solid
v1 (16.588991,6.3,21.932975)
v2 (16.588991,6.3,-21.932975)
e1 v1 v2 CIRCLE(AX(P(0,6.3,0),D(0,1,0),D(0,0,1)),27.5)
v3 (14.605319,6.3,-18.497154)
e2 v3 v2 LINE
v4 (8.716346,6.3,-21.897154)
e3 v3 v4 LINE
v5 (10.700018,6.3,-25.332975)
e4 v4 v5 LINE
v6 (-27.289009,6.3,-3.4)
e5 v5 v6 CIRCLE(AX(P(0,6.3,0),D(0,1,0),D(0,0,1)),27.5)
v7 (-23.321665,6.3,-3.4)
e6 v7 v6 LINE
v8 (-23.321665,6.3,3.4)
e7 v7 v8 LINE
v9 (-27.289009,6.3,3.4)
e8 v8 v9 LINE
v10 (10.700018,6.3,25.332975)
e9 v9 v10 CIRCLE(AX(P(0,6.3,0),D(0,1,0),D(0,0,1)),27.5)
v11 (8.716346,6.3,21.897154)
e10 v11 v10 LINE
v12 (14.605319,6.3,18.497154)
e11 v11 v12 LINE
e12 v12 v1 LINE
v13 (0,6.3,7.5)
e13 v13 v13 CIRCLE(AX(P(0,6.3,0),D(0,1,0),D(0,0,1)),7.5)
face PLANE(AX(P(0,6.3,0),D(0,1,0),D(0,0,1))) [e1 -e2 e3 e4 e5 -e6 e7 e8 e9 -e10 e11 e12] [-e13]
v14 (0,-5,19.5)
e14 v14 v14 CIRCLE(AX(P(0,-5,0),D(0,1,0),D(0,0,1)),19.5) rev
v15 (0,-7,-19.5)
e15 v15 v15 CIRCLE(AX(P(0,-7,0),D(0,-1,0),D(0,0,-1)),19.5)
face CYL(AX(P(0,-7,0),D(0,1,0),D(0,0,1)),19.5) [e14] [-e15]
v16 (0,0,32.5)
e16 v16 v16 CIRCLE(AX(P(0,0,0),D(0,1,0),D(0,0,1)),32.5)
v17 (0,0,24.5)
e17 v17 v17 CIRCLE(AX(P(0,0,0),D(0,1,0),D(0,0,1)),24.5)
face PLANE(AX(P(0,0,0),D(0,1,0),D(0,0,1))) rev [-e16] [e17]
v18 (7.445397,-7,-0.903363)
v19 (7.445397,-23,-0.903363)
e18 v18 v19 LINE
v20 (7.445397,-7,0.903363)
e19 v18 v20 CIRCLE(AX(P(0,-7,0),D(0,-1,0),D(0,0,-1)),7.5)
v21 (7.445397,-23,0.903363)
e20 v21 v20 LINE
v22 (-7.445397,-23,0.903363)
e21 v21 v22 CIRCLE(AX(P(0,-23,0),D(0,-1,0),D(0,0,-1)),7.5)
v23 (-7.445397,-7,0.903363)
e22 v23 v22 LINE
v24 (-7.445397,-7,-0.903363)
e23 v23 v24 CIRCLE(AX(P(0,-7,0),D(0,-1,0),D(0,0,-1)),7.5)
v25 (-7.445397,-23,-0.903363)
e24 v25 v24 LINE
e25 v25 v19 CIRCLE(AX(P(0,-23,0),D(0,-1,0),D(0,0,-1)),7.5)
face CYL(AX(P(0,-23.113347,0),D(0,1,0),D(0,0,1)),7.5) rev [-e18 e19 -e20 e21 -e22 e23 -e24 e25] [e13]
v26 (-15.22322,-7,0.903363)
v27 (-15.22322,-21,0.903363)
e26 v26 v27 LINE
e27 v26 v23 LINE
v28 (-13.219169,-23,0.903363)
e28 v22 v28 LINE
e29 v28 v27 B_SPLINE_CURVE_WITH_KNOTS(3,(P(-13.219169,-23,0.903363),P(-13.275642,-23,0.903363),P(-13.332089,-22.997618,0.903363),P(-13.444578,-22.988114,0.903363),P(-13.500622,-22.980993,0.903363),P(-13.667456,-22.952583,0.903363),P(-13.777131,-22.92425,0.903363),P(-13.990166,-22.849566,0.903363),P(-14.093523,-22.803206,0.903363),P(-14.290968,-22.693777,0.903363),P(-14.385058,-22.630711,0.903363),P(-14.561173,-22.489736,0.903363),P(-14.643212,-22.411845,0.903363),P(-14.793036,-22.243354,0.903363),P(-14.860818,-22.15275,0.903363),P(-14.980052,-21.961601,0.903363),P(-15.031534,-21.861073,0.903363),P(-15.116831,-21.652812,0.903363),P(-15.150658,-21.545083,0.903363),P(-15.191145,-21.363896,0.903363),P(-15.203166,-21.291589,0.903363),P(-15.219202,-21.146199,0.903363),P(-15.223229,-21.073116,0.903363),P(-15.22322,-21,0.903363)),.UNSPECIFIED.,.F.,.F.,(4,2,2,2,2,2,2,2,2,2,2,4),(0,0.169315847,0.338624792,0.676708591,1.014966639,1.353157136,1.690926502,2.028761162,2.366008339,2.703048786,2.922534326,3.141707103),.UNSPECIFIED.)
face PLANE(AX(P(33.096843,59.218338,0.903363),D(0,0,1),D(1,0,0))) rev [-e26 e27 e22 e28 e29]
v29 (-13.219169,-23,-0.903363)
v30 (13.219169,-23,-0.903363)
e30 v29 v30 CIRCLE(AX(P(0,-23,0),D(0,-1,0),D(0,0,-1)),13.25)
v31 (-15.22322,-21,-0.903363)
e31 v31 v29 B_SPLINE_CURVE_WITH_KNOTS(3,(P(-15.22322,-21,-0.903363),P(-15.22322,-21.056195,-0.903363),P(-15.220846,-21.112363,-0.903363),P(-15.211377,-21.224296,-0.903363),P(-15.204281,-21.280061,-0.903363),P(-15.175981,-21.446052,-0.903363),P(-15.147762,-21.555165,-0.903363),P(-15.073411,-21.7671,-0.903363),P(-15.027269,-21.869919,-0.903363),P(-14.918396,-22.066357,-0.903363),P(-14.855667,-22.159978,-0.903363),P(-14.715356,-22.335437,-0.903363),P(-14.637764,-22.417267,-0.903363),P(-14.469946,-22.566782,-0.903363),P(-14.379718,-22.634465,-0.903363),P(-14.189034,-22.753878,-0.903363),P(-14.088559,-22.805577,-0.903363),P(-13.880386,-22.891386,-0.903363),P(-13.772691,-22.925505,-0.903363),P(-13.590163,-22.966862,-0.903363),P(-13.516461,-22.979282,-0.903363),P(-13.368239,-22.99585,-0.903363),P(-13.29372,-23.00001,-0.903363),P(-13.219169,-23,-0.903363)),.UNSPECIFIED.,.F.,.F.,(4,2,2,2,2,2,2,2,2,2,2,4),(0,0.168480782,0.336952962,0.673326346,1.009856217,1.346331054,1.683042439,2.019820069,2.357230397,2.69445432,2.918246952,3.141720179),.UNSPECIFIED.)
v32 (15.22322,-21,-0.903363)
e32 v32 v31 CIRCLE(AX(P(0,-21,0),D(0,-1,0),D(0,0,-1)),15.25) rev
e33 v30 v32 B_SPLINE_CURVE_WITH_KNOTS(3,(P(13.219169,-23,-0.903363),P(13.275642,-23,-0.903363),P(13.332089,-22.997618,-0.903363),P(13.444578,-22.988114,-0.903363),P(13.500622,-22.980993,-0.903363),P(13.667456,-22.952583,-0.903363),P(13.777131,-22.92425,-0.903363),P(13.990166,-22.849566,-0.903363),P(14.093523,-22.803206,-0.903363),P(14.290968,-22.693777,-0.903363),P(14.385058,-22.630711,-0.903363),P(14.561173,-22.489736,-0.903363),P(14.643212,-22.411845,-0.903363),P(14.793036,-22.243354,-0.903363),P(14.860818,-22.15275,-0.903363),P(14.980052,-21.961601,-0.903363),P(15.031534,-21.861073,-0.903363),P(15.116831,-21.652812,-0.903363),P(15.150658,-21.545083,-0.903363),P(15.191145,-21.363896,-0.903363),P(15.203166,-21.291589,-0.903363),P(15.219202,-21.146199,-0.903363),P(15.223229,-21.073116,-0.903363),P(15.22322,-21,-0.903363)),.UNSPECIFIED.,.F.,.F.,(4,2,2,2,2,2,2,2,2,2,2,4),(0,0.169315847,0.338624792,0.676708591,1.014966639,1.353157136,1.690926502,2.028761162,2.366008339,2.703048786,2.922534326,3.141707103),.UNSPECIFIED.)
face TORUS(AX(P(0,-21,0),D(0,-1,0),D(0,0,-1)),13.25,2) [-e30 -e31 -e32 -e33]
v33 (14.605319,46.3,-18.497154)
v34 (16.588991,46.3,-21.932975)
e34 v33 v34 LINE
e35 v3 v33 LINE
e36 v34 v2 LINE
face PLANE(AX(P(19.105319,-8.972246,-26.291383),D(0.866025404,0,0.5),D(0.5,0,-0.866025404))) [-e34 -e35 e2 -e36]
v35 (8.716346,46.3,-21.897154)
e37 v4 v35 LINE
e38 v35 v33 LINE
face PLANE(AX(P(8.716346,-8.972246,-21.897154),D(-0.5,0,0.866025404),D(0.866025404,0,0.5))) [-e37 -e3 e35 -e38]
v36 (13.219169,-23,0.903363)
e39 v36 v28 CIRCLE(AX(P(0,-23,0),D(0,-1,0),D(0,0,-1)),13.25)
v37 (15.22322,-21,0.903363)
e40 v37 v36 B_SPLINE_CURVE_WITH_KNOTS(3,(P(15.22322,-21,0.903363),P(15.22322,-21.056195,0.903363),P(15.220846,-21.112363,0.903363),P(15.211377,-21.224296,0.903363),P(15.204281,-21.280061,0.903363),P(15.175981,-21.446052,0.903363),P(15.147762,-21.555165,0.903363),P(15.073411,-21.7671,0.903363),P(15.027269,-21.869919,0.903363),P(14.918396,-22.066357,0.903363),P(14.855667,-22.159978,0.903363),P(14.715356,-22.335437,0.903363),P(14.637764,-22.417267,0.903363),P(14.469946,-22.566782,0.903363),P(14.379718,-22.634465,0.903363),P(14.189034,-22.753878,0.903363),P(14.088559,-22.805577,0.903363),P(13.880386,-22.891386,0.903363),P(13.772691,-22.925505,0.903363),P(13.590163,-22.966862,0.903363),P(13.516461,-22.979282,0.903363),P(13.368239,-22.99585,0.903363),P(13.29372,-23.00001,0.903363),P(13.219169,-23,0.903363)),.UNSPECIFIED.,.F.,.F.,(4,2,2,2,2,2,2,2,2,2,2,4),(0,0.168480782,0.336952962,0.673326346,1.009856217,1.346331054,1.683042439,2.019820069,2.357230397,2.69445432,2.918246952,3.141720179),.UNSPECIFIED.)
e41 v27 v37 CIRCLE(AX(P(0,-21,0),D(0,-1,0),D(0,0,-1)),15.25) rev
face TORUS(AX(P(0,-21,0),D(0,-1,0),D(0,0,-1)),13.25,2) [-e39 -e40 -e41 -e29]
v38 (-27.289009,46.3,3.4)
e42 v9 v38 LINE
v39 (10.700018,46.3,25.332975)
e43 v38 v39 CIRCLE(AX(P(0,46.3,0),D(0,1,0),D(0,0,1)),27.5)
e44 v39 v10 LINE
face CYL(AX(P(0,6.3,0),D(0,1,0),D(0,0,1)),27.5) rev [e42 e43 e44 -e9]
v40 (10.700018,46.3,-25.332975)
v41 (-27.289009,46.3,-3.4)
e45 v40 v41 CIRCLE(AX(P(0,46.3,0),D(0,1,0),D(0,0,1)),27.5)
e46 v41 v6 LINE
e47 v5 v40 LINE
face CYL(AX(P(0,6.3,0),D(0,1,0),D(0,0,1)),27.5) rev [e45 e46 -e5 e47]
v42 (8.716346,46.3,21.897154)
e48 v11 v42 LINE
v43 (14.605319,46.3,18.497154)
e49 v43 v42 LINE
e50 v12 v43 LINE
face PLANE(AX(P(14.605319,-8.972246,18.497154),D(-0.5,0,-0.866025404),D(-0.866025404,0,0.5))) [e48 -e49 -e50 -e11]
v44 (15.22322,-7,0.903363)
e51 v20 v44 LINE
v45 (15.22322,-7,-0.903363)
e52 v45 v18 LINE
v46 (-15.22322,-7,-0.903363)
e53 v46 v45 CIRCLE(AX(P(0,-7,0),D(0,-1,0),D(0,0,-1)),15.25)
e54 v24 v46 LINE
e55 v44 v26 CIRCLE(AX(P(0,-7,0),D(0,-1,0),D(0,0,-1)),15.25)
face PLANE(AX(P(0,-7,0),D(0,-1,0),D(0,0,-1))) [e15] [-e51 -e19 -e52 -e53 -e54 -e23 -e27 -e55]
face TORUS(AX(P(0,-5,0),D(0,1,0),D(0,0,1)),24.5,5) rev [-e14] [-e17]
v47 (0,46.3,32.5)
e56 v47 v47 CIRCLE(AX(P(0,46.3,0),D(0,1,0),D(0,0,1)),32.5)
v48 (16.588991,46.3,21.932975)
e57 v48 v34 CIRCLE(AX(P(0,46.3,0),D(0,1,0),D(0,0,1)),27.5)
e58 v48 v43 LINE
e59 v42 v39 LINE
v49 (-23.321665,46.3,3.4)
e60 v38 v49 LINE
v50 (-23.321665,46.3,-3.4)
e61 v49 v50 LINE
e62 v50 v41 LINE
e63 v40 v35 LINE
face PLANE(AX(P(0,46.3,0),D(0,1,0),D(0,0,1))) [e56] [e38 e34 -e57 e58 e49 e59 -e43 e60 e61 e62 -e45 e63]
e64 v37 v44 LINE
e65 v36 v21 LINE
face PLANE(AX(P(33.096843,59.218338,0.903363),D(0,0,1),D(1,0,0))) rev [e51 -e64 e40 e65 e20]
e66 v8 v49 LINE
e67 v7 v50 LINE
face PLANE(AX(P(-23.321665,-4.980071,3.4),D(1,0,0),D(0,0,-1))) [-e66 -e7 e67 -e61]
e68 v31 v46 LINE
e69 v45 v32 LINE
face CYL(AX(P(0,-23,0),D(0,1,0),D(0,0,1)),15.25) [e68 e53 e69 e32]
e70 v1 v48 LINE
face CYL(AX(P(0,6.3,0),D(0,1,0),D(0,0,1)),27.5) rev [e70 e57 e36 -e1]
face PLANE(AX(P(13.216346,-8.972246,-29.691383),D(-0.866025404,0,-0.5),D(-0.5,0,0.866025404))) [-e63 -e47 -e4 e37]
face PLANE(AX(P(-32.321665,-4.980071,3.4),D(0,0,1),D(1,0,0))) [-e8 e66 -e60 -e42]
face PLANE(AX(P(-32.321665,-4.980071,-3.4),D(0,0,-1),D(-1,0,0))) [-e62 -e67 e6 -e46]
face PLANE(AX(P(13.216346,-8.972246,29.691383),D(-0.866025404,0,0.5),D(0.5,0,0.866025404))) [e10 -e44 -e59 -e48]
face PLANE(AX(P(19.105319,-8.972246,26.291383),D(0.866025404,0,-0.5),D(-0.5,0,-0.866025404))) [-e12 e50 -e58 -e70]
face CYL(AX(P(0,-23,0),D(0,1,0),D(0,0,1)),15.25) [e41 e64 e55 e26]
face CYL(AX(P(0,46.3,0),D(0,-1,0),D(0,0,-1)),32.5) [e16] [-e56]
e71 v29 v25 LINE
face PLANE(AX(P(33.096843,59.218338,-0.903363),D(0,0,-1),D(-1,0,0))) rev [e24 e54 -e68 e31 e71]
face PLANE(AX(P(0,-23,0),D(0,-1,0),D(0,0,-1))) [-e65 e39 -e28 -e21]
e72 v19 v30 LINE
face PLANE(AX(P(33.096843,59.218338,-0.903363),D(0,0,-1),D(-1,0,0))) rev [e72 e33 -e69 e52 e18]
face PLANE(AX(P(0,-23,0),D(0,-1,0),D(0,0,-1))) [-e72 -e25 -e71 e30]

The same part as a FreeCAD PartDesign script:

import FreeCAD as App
import Part
import Sketcher
Q = App.Units.Quantity


def edges_at(feature, points):
    """Names of the edges that pass closest to the given points."""
    edges = feature.Shape.Edges
    near = lambda p: min(range(len(edges)), key=lambda i: edges[i].distToShape(Part.Vertex(*p))[0])
    return sorted({f"Edge{near(p) + 1}" for p in points})

doc = App.newDocument("Part")
params = doc.addObject("Spreadsheet::Sheet", "Params")
for row, (alias, value) in enumerate([
    ("sketch1_diameter", "65 mm"),
    ("pad1_length", "46.3 mm"),
    ("sketch2_diameter", "55 mm"),
    ("pocket1_length", "40 mm"),
    ("sketch3_diameter", "39 mm"),
    ("pad2_length", "7 mm"),
    ("sketch4_diameter", "30.5 mm"),
    ("pad3_length", "16 mm"),
    ("fillet_radius", "5 mm"),
    ("pocket2_length", "16 mm"),
    ("fillet2_radius", "2 mm"),
    ("sketch6_width", "9 mm"),
    ("sketch6_height", "6.8 mm"),
    ("pad4_length", "40 mm"),
    ("sketch7_diameter", "15 mm"),
], start=1):
    params.set(f"A{row}", alias)
    params.set(f"B{row}", "=" + value)
    params.setAlias(f"B{row}", alias)

body = doc.addObject("PartDesign::Body", "Body")

sketch1 = body.newObject("Sketcher::SketchObject", "Sketch")
sketch1.AttachmentSupport = (doc.getObject("XZ_Plane"), [""])
sketch1.MapMode = "FlatFace"
sketch1.addGeometry(Part.Circle(App.Vector(0, 0, 0), App.Vector(0, 0, 1), 32), False)
sketch1.addConstraint(Sketcher.Constraint("Coincident", 0, 3, -1, 1))
sketch1.addConstraint(Sketcher.Constraint("Diameter", 0, Q("65 mm")))
sketch1.setExpression("Constraints[1]", "Params.sketch1_diameter")
pad1 = body.newObject("PartDesign::Pad", "Pad")
pad1.Profile = sketch1
pad1.setExpression("Length", "Params.pad1_length")
pad1.Reversed = True

sketch2 = body.newObject("Sketcher::SketchObject", "Sketch001")
sketch2.AttachmentSupport = (doc.getObject("XZ_Plane"), [""])
sketch2.MapMode = "FlatFace"
sketch2.AttachmentOffset = App.Placement(App.Vector(0, 0, -46.3), App.Rotation())
sketch2.addGeometry(Part.Circle(App.Vector(0, 0, 0), App.Vector(0, 0, 1), 28), False)
sketch2.addConstraint(Sketcher.Constraint("Coincident", 0, 3, -1, 1))
sketch2.addConstraint(Sketcher.Constraint("Diameter", 0, Q("55 mm")))
sketch2.setExpression("Constraints[1]", "Params.sketch2_diameter")
pocket1 = body.newObject("PartDesign::Pocket", "Pocket")
pocket1.Profile = sketch2
pocket1.setExpression("Length", "Params.pocket1_length")
pocket1.Reversed = True

sketch3 = body.newObject("Sketcher::SketchObject", "Sketch002")
sketch3.AttachmentSupport = (doc.getObject("XZ_Plane"), [""])
sketch3.MapMode = "FlatFace"
sketch3.addGeometry(Part.Circle(App.Vector(0, 0, 0), App.Vector(0, 0, 1), 20), False)
sketch3.addConstraint(Sketcher.Constraint("Coincident", 0, 3, -1, 1))
sketch3.addConstraint(Sketcher.Constraint("Diameter", 0, Q("39 mm")))
sketch3.setExpression("Constraints[1]", "Params.sketch3_diameter")
pad2 = body.newObject("PartDesign::Pad", "Pad001")
pad2.Profile = sketch3
pad2.setExpression("Length", "Params.pad2_length")

sketch4 = body.newObject("Sketcher::SketchObject", "Sketch003")
sketch4.AttachmentSupport = (doc.getObject("XZ_Plane"), [""])
sketch4.MapMode = "FlatFace"
sketch4.AttachmentOffset = App.Placement(App.Vector(0, 0, 7), App.Rotation())
sketch4.addGeometry(Part.Circle(App.Vector(0, 0, 0), App.Vector(0, 0, 1), 15), False)
sketch4.addConstraint(Sketcher.Constraint("Coincident", 0, 3, -1, 1))
sketch4.addConstraint(Sketcher.Constraint("Diameter", 0, Q("30.5 mm")))
sketch4.setExpression("Constraints[1]", "Params.sketch4_diameter")
pad3 = body.newObject("PartDesign::Pad", "Pad002")
pad3.Profile = sketch4
pad3.setExpression("Length", "Params.pad3_length")
doc.recompute()

fillet = body.newObject("PartDesign::Fillet", "Fillet")
fillet.Base = (pad3, edges_at(pad3, [(0, 0, 19.5)]))
fillet.setExpression("Radius", "Params.fillet_radius")

sketch5 = body.newObject("Sketcher::SketchObject", "Sketch004")
sketch5.AttachmentSupport = (doc.getObject("XZ_Plane"), [""])
sketch5.MapMode = "FlatFace"
sketch5.AttachmentOffset = App.Placement(App.Vector(0, 0, 23), App.Rotation())
sketch5.addGeometry(Part.LineSegment(App.Vector(-33.1, 0.9, 0), App.Vector(-33.1, -0.9, 0)), False)
sketch5.addGeometry(Part.LineSegment(App.Vector(-33.1, -0.9, 0), App.Vector(33.1, -0.9, 0)), False)
sketch5.addGeometry(Part.LineSegment(App.Vector(33.1, -0.9, 0), App.Vector(33.1, 0.9, 0)), False)
sketch5.addGeometry(Part.LineSegment(App.Vector(33.1, 0.9, 0), App.Vector(-33.1, 0.9, 0)), False)
sketch5.addConstraint(Sketcher.Constraint("Coincident", 0, 2, 1, 1))
sketch5.addConstraint(Sketcher.Constraint("Coincident", 1, 2, 2, 1))
sketch5.addConstraint(Sketcher.Constraint("Coincident", 2, 2, 3, 1))
sketch5.addConstraint(Sketcher.Constraint("Coincident", 3, 2, 0, 1))
sketch5.addConstraint(Sketcher.Constraint("Vertical", 0))
sketch5.addConstraint(Sketcher.Constraint("Horizontal", 1))
sketch5.addConstraint(Sketcher.Constraint("Vertical", 2))
sketch5.addConstraint(Sketcher.Constraint("Horizontal", 3))
sketch5.addConstraint(Sketcher.Constraint("Symmetric", 0, 2, 2, 2, -1, 1))
sketch5.addConstraint(Sketcher.Constraint("DistanceX", 1, 1, 1, 2, Q("66.193685 mm")))
sketch5.addConstraint(Sketcher.Constraint("DistanceY", 0, 2, 0, 1, Q("1.806727 mm")))
pocket2 = body.newObject("PartDesign::Pocket", "Pocket001")
pocket2.Profile = sketch5
pocket2.setExpression("Length", "Params.pocket2_length")
doc.recompute()

fillet2 = body.newObject("PartDesign::Fillet", "Fillet001")
fillet2.Base = (pocket2, edges_at(pocket2, [(0, -23, 15.25), (0, -23, -15.25)]))
fillet2.setExpression("Radius", "Params.fillet2_radius")

sketch6 = body.newObject("Sketcher::SketchObject", "Sketch005")
sketch6.AttachmentSupport = (doc.getObject("XZ_Plane"), [""])
sketch6.MapMode = "FlatFace"
sketch6.AttachmentOffset = App.Placement(App.Vector(0, 0, -46.3), App.Rotation())
sketch6.addGeometry(Part.LineSegment(App.Vector(-32, -3, 0), App.Vector(-32, 3, 0)), False)
sketch6.addGeometry(Part.LineSegment(App.Vector(-32, 3, 0), App.Vector(-23, 3, 0)), False)
sketch6.addGeometry(Part.LineSegment(App.Vector(-23, 3, 0), App.Vector(-23, -3, 0)), False)
sketch6.addGeometry(Part.LineSegment(App.Vector(-23, -3, 0), App.Vector(-32, -3, 0)), False)
sketch6.addConstraint(Sketcher.Constraint("Coincident", 0, 2, 1, 1))
sketch6.addConstraint(Sketcher.Constraint("Coincident", 1, 2, 2, 1))
sketch6.addConstraint(Sketcher.Constraint("Coincident", 2, 2, 3, 1))
sketch6.addConstraint(Sketcher.Constraint("Coincident", 3, 2, 0, 1))
sketch6.addConstraint(Sketcher.Constraint("Vertical", 0))
sketch6.addConstraint(Sketcher.Constraint("Horizontal", 1))
sketch6.addConstraint(Sketcher.Constraint("Vertical", 2))
sketch6.addConstraint(Sketcher.Constraint("Horizontal", 3))
sketch6.addConstraint(Sketcher.Constraint("DistanceX", 1, 1, 1, 2, Q("9 mm")))
sketch6.addConstraint(Sketcher.Constraint("DistanceY", 0, 1, 0, 2, Q("6.8 mm")))
sketch6.addConstraint(Sketcher.Constraint("DistanceY", -1, 1, 0, 2, Q("3.4 mm")))
sketch6.addConstraint(Sketcher.Constraint("DistanceX", 0, 2, -1, 1, Q("32.321665 mm")))
sketch6.setExpression("Constraints[8]", "Params.sketch6_width")
sketch6.setExpression("Constraints[9]", "Params.sketch6_height")
pad4 = body.newObject("PartDesign::Pad", "Pad003")
pad4.Profile = sketch6
pad4.setExpression("Length", "Params.pad4_length")

sketch7 = body.newObject("Sketcher::SketchObject", "Sketch006")
sketch7.AttachmentSupport = (doc.getObject("XZ_Plane"), [""])
sketch7.MapMode = "FlatFace"
sketch7.AttachmentOffset = App.Placement(App.Vector(0, 0, -6.3), App.Rotation())
sketch7.addGeometry(Part.Circle(App.Vector(0, 0, 0), App.Vector(0, 0, 1), 8), False)
sketch7.addConstraint(Sketcher.Constraint("Coincident", 0, 3, -1, 1))
sketch7.addConstraint(Sketcher.Constraint("Diameter", 0, Q("15 mm")))
sketch7.setExpression("Constraints[1]", "Params.sketch7_diameter")
pocket3 = body.newObject("PartDesign::Pocket", "Pocket002")
pocket3.Profile = sketch7
pocket3.Type = "ThroughAll"
pocket3.Reversed = True
doc.recompute()

polarpattern = body.newObject("PartDesign::PolarPattern", "PolarPattern")
polarpattern.Originals = [pad4]
polarpattern.Axis = (doc.getObject("Y_Axis"), [""])
polarpattern.Angle = 360
polarpattern.Occurrences = 3
body.Tip = polarpattern

doc.recompute()
